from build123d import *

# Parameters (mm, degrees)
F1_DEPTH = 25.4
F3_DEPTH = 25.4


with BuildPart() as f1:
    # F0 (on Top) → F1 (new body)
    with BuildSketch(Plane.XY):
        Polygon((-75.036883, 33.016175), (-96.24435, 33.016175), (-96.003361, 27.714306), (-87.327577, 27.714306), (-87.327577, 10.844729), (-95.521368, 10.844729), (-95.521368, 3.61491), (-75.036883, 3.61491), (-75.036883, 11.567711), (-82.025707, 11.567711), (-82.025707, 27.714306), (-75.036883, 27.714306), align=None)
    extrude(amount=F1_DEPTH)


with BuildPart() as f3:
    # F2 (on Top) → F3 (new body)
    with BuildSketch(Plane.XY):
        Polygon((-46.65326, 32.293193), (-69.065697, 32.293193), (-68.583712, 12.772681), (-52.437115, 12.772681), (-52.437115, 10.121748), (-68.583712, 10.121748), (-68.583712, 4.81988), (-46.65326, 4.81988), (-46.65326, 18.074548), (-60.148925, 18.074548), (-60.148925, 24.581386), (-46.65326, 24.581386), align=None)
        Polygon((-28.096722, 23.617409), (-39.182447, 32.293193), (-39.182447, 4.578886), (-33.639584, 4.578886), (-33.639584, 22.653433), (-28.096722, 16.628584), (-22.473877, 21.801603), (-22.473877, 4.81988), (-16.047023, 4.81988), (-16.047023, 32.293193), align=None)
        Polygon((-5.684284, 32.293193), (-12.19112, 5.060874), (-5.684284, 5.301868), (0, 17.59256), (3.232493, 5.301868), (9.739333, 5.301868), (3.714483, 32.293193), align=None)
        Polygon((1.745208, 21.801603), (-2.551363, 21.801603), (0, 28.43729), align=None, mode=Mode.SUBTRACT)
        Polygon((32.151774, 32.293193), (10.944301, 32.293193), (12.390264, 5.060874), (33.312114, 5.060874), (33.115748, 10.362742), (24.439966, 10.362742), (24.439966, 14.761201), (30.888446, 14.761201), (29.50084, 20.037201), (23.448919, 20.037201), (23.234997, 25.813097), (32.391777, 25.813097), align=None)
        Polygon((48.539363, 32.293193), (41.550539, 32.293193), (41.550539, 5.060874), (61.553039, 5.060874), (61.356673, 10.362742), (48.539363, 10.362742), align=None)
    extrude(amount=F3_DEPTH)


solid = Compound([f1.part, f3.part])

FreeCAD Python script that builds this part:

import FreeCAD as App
import Part
import Sketcher

V = App.Vector
Q = App.Units.Quantity

doc = App.newDocument("Part")
body = doc.addObject("PartDesign::Body", "Body")

# Sketch on XY plane
sketch1 = body.newObject("Sketcher::SketchObject", "Sketch")
sketch1.AttachmentSupport = (doc.getObject("XY_Plane"), [""])
sketch1.MapMode = "FlatFace"
sketch1.addGeometry(Part.LineSegment(V(-75.036883, 33.016175, 0), V(-96.24435, 33.016175, 0)), False)
sketch1.addGeometry(Part.LineSegment(V(-96.24435, 33.016175, 0), V(-96.003361, 27.714306, 0)), False)
sketch1.addGeometry(Part.LineSegment(V(-96.003361, 27.714306, 0), V(-87.327577, 27.714306, 0)), False)
sketch1.addGeometry(Part.LineSegment(V(-87.327577, 27.714306, 0), V(-87.327577, 10.844729, 0)), False)
sketch1.addGeometry(Part.LineSegment(V(-87.327577, 10.844729, 0), V(-95.521368, 10.844729, 0)), False)
sketch1.addGeometry(Part.LineSegment(V(-95.521368, 10.844729, 0), V(-95.521368, 3.61491, 0)), False)
sketch1.addGeometry(Part.LineSegment(V(-95.521368, 3.61491, 0), V(-75.036883, 3.61491, 0)), False)
sketch1.addGeometry(Part.LineSegment(V(-75.036883, 3.61491, 0), V(-75.036883, 11.567711, 0)), False)
sketch1.addGeometry(Part.LineSegment(V(-75.036883, 11.567711, 0), V(-82.025707, 11.567711, 0)), False)
sketch1.addGeometry(Part.LineSegment(V(-82.025707, 11.567711, 0), V(-82.025707, 27.714306, 0)), False)
sketch1.addGeometry(Part.LineSegment(V(-82.025707, 27.714306, 0), V(-75.036883, 27.714306, 0)), False)
sketch1.addGeometry(Part.LineSegment(V(-75.036883, 27.714306, 0), V(-75.036883, 33.016175, 0)), False)
sketch1.addConstraint(Sketcher.Constraint("Coincident", 0, 2, 1, 1))
sketch1.addConstraint(Sketcher.Constraint("Coincident", 1, 2, 2, 1))
sketch1.addConstraint(Sketcher.Constraint("Coincident", 2, 2, 3, 1))
sketch1.addConstraint(Sketcher.Constraint("Coincident", 3, 2, 4, 1))
sketch1.addConstraint(Sketcher.Constraint("Coincident", 4, 2, 5, 1))
sketch1.addConstraint(Sketcher.Constraint("Coincident", 5, 2, 6, 1))
sketch1.addConstraint(Sketcher.Constraint("Coincident", 6, 2, 7, 1))
sketch1.addConstraint(Sketcher.Constraint("Coincident", 7, 2, 8, 1))
sketch1.addConstraint(Sketcher.Constraint("Coincident", 8, 2, 9, 1))
sketch1.addConstraint(Sketcher.Constraint("Coincident", 9, 2, 10, 1))
sketch1.addConstraint(Sketcher.Constraint("Coincident", 10, 2, 11, 1))
sketch1.addConstraint(Sketcher.Constraint("Coincident", 11, 2, 0, 1))
sketch1.addConstraint(Sketcher.Constraint("Horizontal", 0))
sketch1.addConstraint(Sketcher.Constraint("Horizontal", 2))
sketch1.addConstraint(Sketcher.Constraint("Vertical", 3))
sketch1.addConstraint(Sketcher.Constraint("Horizontal", 4))
sketch1.addConstraint(Sketcher.Constraint("Vertical", 5))
sketch1.addConstraint(Sketcher.Constraint("Horizontal", 6))
sketch1.addConstraint(Sketcher.Constraint("Vertical", 7))
sketch1.addConstraint(Sketcher.Constraint("Horizontal", 8))
sketch1.addConstraint(Sketcher.Constraint("Vertical", 9))
sketch1.addConstraint(Sketcher.Constraint("Horizontal", 10))
sketch1.addConstraint(Sketcher.Constraint("Vertical", 11))
sketch1.addConstraint(Sketcher.Constraint("Horizontal", 2, 2, 9, 2))
sketch1.addConstraint(Sketcher.Constraint("Vertical", 7, 2, 10, 2))
sketch1.addConstraint(Sketcher.Constraint("DistanceY", 7, 1, 7, 2, 7.952801))
sketch1.addConstraint(Sketcher.Constraint("DistanceX", 4, 2, 4, 1, 8.193791))
sketch1.addConstraint(Sketcher.Constraint("DistanceY", 5, 2, 5, 1, 7.229819))
sketch1.addConstraint(Sketcher.Constraint("DistanceY", 11, 1, 11, 2, 5.301869))
sketch1.addConstraint(Sketcher.Constraint("DistanceX", 0, 2, 0, 1, 21.207467))
sketch1.addConstraint(Sketcher.Constraint("DistanceX", 2, 1, 2, 2, 8.675784))
sketch1.addConstraint(Sketcher.Constraint("DistanceX", 6, 1, 6, 2, 20.484485))
sketch1.addConstraint(Sketcher.Constraint("DistanceX", 8, 2, 8, 1, 6.988824))
sketch1.addConstraint(Sketcher.Constraint("DistanceY", 3, 2, 3, 1, 16.869577))
sketch1.addConstraint(Sketcher.Constraint("DistanceX", 0, 2, -1, 1, 96.24435))
sketch1.addConstraint(Sketcher.Constraint("DistanceY", -1, 1, 3, 2, 10.844729))
pad1 = body.newObject("PartDesign::Pad", "Pad")
pad1.Profile = sketch1
pad1.Length = Q("1 in")
body2 = doc.addObject("PartDesign::Body", "Body001")
body2.AllowCompound = True

# Sketch on XY plane
sketch2 = body2.newObject("Sketcher::SketchObject", "Sketch001")
sketch2.AttachmentSupport = (doc.getObject("XY_Plane001"), [""])
sketch2.MapMode = "FlatFace"
sketch2.addGeometry(Part.LineSegment(V(-46.65326, 32.293193, 0), V(-69.065697, 32.293193, 0)), False)
sketch2.addGeometry(Part.LineSegment(V(-69.065697, 32.293193, 0), V(-68.583712, 12.772681, 0)), False)
sketch2.addGeometry(Part.LineSegment(V(-68.583712, 12.772681, 0), V(-52.437115, 12.772681, 0)), False)
sketch2.addGeometry(Part.LineSegment(V(-52.437115, 12.772681, 0), V(-52.437115, 10.121748, 0)), False)
sketch2.addGeometry(Part.LineSegment(V(-52.437115, 10.121748, 0), V(-68.583712, 10.121748, 0)), False)
sketch2.addGeometry(Part.LineSegment(V(-68.583712, 10.121748, 0), V(-68.583712, 4.81988, 0)), False)
sketch2.addGeometry(Part.LineSegment(V(-68.583712, 4.81988, 0), V(-46.65326, 4.81988, 0)), False)
sketch2.addGeometry(Part.LineSegment(V(-46.65326, 4.81988, 0), V(-46.65326, 18.074548, 0)), False)
sketch2.addGeometry(Part.LineSegment(V(-46.65326, 18.074548, 0), V(-60.148925, 18.074548, 0)), False)
sketch2.addGeometry(Part.LineSegment(V(-60.148925, 18.074548, 0), V(-60.148925, 24.581386, 0)), False)
sketch2.addGeometry(Part.LineSegment(V(-60.148925, 24.581386, 0), V(-46.65326, 24.581386, 0)), False)
sketch2.addGeometry(Part.LineSegment(V(-46.65326, 24.581386, 0), V(-46.65326, 32.293193, 0)), False)
sketch2.addGeometry(Part.LineSegment(V(-28.096722, 23.617409, 0), V(-39.182447, 32.293193, 0)), False)
sketch2.addGeometry(Part.LineSegment(V(-39.182447, 32.293193, 0), V(-39.182447, 4.578886, 0)), False)
sketch2.addGeometry(Part.LineSegment(V(-39.182447, 4.578886, 0), V(-33.639584, 4.578886, 0)), False)
sketch2.addGeometry(Part.LineSegment(V(-33.639584, 4.578886, 0), V(-33.639584, 22.653433, 0)), False)
sketch2.addGeometry(Part.LineSegment(V(-33.639584, 22.653433, 0), V(-28.096722, 16.628584, 0)), False)
sketch2.addGeometry(Part.LineSegment(V(-28.096722, 16.628584, 0), V(-22.473877, 21.801603, 0)), False)
sketch2.addGeometry(Part.LineSegment(V(-22.473877, 21.801603, 0), V(-22.473877, 4.81988, 0)), False)
sketch2.addGeometry(Part.LineSegment(V(-22.473877, 4.81988, 0), V(-16.047023, 4.81988, 0)), False)
sketch2.addGeometry(Part.LineSegment(V(-16.047023, 4.81988, 0), V(-16.047023, 32.293193, 0)), False)
sketch2.addGeometry(Part.LineSegment(V(-16.047023, 32.293193, 0), V(-28.096722, 23.617409, 0)), False)
sketch2.addGeometry(Part.LineSegment(V(-5.684284, 32.293193, 0), V(-12.19112, 5.060874, 0)), False)
sketch2.addGeometry(Part.LineSegment(V(-12.19112, 5.060874, 0), V(-5.684284, 5.301868, 0)), False)
sketch2.addGeometry(Part.LineSegment(V(-5.684284, 5.301868, 0), V(0, 17.59256, 0)), False)
sketch2.addGeometry(Part.LineSegment(V(0, 17.59256, 0), V(3.232493, 5.301868, 0)), False)
sketch2.addGeometry(Part.LineSegment(V(3.232493, 5.301868, 0), V(9.739333, 5.301868, 0)), False)
sketch2.addGeometry(Part.LineSegment(V(9.739333, 5.301868, 0), V(3.714483, 32.293193, 0)), False)
sketch2.addGeometry(Part.LineSegment(V(3.714483, 32.293193, 0), V(-5.684284, 32.293193, 0)), False)
sketch2.addGeometry(Part.LineSegment(V(0, 28.43729, 0), V(1.745208, 21.801603, 0)), False)
sketch2.addGeometry(Part.LineSegment(V(1.745208, 21.801603, 0), V(-2.551363, 21.801603, 0)), False)
sketch2.addGeometry(Part.LineSegment(V(-2.551363, 21.801603, 0), V(0, 28.43729, 0)), False)
sketch2.addGeometry(Part.LineSegment(V(32.151774, 32.293193, 0), V(10.944301, 32.293193, 0)), False)
sketch2.addGeometry(Part.LineSegment(V(10.944301, 32.293193, 0), V(12.390264, 5.060874, 0)), False)
sketch2.addGeometry(Part.LineSegment(V(12.390264, 5.060874, 0), V(33.312114, 5.060874, 0)), False)
sketch2.addGeometry(Part.LineSegment(V(33.312114, 5.060874, 0), V(33.115748, 10.362742, 0)), False)
sketch2.addGeometry(Part.LineSegment(V(33.115748, 10.362742, 0), V(24.439966, 10.362742, 0)), False)
sketch2.addGeometry(Part.LineSegment(V(24.439966, 10.362742, 0), V(24.439966, 14.761201, 0)), False)
sketch2.addGeometry(Part.LineSegment(V(24.439966, 14.761201, 0), V(30.888446, 14.761201, 0)), False)
sketch2.addGeometry(Part.LineSegment(V(30.888446, 14.761201, 0), V(29.50084, 20.037201, 0)), False)
sketch2.addGeometry(Part.LineSegment(V(29.50084, 20.037201, 0), V(23.448919, 20.037201, 0)), False)
sketch2.addGeometry(Part.LineSegment(V(23.448919, 20.037201, 0), V(23.234997, 25.813097, 0)), False)
sketch2.addGeometry(Part.LineSegment(V(23.234997, 25.813097, 0), V(32.391777, 25.813097, 0)), False)
sketch2.addGeometry(Part.LineSegment(V(32.391777, 25.813097, 0), V(32.151774, 32.293193, 0)), False)
sketch2.addGeometry(Part.LineSegment(V(48.539363, 32.293193, 0), V(41.550539, 32.293193, 0)), False)
sketch2.addGeometry(Part.LineSegment(V(41.550539, 32.293193, 0), V(41.550539, 5.060874, 0)), False)
sketch2.addGeometry(Part.LineSegment(V(41.550539, 5.060874, 0), V(61.553039, 5.060874, 0)), False)
sketch2.addGeometry(Part.LineSegment(V(61.553039, 5.060874, 0), V(61.356673, 10.362742, 0)), False)
sketch2.addGeometry(Part.LineSegment(V(61.356673, 10.362742, 0), V(48.539363, 10.362742, 0)), False)
sketch2.addGeometry(Part.LineSegment(V(48.539363, 10.362742, 0), V(48.539363, 32.293193, 0)), False)
sketch2.addConstraint(Sketcher.Constraint("Coincident", 0, 2, 1, 1))
sketch2.addConstraint(Sketcher.Constraint("Coincident", 1, 2, 2, 1))
sketch2.addConstraint(Sketcher.Constraint("Coincident", 2, 2, 3, 1))
sketch2.addConstraint(Sketcher.Constraint("Coincident", 3, 2, 4, 1))
sketch2.addConstraint(Sketcher.Constraint("Coincident", 4, 2, 5, 1))
sketch2.addConstraint(Sketcher.Constraint("Coincident", 5, 2, 6, 1))
sketch2.addConstraint(Sketcher.Constraint("Coincident", 6, 2, 7, 1))
sketch2.addConstraint(Sketcher.Constraint("Coincident", 7, 2, 8, 1))
sketch2.addConstraint(Sketcher.Constraint("Coincident", 8, 2, 9, 1))
sketch2.addConstraint(Sketcher.Constraint("Coincident", 9, 2, 10, 1))
sketch2.addConstraint(Sketcher.Constraint("Coincident", 10, 2, 11, 1))
sketch2.addConstraint(Sketcher.Constraint("Coincident", 11, 2, 0, 1))
sketch2.addConstraint(Sketcher.Constraint("Coincident", 12, 2, 13, 1))
sketch2.addConstraint(Sketcher.Constraint("Coincident", 13, 2, 14, 1))
sketch2.addConstraint(Sketcher.Constraint("Coincident", 14, 2, 15, 1))
sketch2.addConstraint(Sketcher.Constraint("Coincident", 15, 2, 16, 1))
sketch2.addConstraint(Sketcher.Constraint("Coincident", 16, 2, 17, 1))
sketch2.addConstraint(Sketcher.Constraint("Coincident", 17, 2, 18, 1))
sketch2.addConstraint(Sketcher.Constraint("Coincident", 18, 2, 19, 1))
sketch2.addConstraint(Sketcher.Constraint("Coincident", 19, 2, 20, 1))
sketch2.addConstraint(Sketcher.Constraint("Coincident", 20, 2, 21, 1))
sketch2.addConstraint(Sketcher.Constraint("Coincident", 21, 2, 12, 1))
sketch2.addConstraint(Sketcher.Constraint("Coincident", 22, 2, 23, 1))
sketch2.addConstraint(Sketcher.Constraint("Coincident", 23, 2, 24, 1))
sketch2.addConstraint(Sketcher.Constraint("Coincident", 24, 2, 25, 1))
sketch2.addConstraint(Sketcher.Constraint("Coincident", 25, 2, 26, 1))
sketch2.addConstraint(Sketcher.Constraint("Coincident", 26, 2, 27, 1))
sketch2.addConstraint(Sketcher.Constraint("Coincident", 27, 2, 28, 1))
sketch2.addConstraint(Sketcher.Constraint("Coincident", 28, 2, 22, 1))
sketch2.addConstraint(Sketcher.Constraint("Coincident", 29, 2, 30, 1))
sketch2.addConstraint(Sketcher.Constraint("Coincident", 30, 2, 31, 1))
sketch2.addConstraint(Sketcher.Constraint("Coincident", 31, 2, 29, 1))
sketch2.addConstraint(Sketcher.Constraint("Coincident", 32, 2, 33, 1))
sketch2.addConstraint(Sketcher.Constraint("Coincident", 33, 2, 34, 1))
sketch2.addConstraint(Sketcher.Constraint("Coincident", 34, 2, 35, 1))
sketch2.addConstraint(Sketcher.Constraint("Coincident", 35, 2, 36, 1))
sketch2.addConstraint(Sketcher.Constraint("Coincident", 36, 2, 37, 1))
sketch2.addConstraint(Sketcher.Constraint("Coincident", 37, 2, 38, 1))
sketch2.addConstraint(Sketcher.Constraint("Coincident", 38, 2, 39, 1))
sketch2.addConstraint(Sketcher.Constraint("Coincident", 39, 2, 40, 1))
sketch2.addConstraint(Sketcher.Constraint("Coincident", 40, 2, 41, 1))
sketch2.addConstraint(Sketcher.Constraint("Coincident", 41, 2, 42, 1))
sketch2.addConstraint(Sketcher.Constraint("Coincident", 42, 2, 43, 1))
sketch2.addConstraint(Sketcher.Constraint("Coincident", 43, 2, 32, 1))
sketch2.addConstraint(Sketcher.Constraint("Coincident", 44, 2, 45, 1))
sketch2.addConstraint(Sketcher.Constraint("Coincident", 45, 2, 46, 1))
sketch2.addConstraint(Sketcher.Constraint("Coincident", 46, 2, 47, 1))
sketch2.addConstraint(Sketcher.Constraint("Coincident", 47, 2, 48, 1))
sketch2.addConstraint(Sketcher.Constraint("Coincident", 48, 2, 49, 1))
sketch2.addConstraint(Sketcher.Constraint("Coincident", 49, 2, 44, 1))
sketch2.addConstraint(Sketcher.Constraint("Horizontal", 0))
sketch2.addConstraint(Sketcher.Constraint("Horizontal", 2))
sketch2.addConstraint(Sketcher.Constraint("Vertical", 3))
sketch2.addConstraint(Sketcher.Constraint("Horizontal", 4))
sketch2.addConstraint(Sketcher.Constraint("Vertical", 5))
sketch2.addConstraint(Sketcher.Constraint("Horizontal", 6))
sketch2.addConstraint(Sketcher.Constraint("Vertical", 7))
sketch2.addConstraint(Sketcher.Constraint("Horizontal", 8))
sketch2.addConstraint(Sketcher.Constraint("Vertical", 9))
sketch2.addConstraint(Sketcher.Constraint("Horizontal", 10))
sketch2.addConstraint(Sketcher.Constraint("Vertical", 11))
sketch2.addConstraint(Sketcher.Constraint("Vertical", 13))
sketch2.addConstraint(Sketcher.Constraint("Horizontal", 14))
sketch2.addConstraint(Sketcher.Constraint("Vertical", 15))
sketch2.addConstraint(Sketcher.Constraint("Vertical", 18))
sketch2.addConstraint(Sketcher.Constraint("Horizontal", 19))
sketch2.addConstraint(Sketcher.Constraint("Vertical", 20))
sketch2.addConstraint(Sketcher.Constraint("Horizontal", 26))
sketch2.addConstraint(Sketcher.Constraint("Horizontal", 28))
sketch2.addConstraint(Sketcher.Constraint("Horizontal", 30))
sketch2.addConstraint(Sketcher.Constraint("Horizontal", 32))
sketch2.addConstraint(Sketcher.Constraint("Horizontal", 34))
sketch2.addConstraint(Sketcher.Constraint("Horizontal", 36))
sketch2.addConstraint(Sketcher.Constraint("Vertical", 37))
sketch2.addConstraint(Sketcher.Constraint("Horizontal", 38))
sketch2.addConstraint(Sketcher.Constraint("Horizontal", 40))
sketch2.addConstraint(Sketcher.Constraint("Horizontal", 42))
sketch2.addConstraint(Sketcher.Constraint("Horizontal", 44))
sketch2.addConstraint(Sketcher.Constraint("Vertical", 45))
sketch2.addConstraint(Sketcher.Constraint("Horizontal", 46))
sketch2.addConstraint(Sketcher.Constraint("Horizontal", 48))
sketch2.addConstraint(Sketcher.Constraint("Vertical", 49))
sketch2.addConstraint(Sketcher.Constraint("PointOnObject", 24, 2, -2))
sketch2.addConstraint(Sketcher.Constraint("PointOnObject", 31, 2, -2))
sketch2.addConstraint(Sketcher.Constraint("DistanceX", 46, 1, 46, 2, Q("0.7875 in")))
sketch2.addConstraint(Sketcher.Constraint("DistanceY", 13, 2, 10, 2, Q("0.7875 in")))
sketch2.addConstraint(Sketcher.Constraint("Distance", 24, 13.541499))
sketch2.addConstraint(Sketcher.Constraint("DistanceX", 26, 1, 26, 2, 6.50684))
sketch2.addConstraint(Sketcher.Constraint("DistanceX", 30, 2, 30, 1, 4.296571))
sketch2.addConstraint(Sketcher.Constraint("DistanceX", 34, 1, 34, 2, 20.92185))
sketch2.addConstraint(Sketcher.Constraint("DistanceX", 38, 1, 38, 2, 6.44848))
sketch2.addConstraint(Sketcher.Constraint("DistanceX", 40, 2, 40, 1, 6.051921))
sketch2.addConstraint(Sketcher.Constraint("DistanceX", 42, 1, 42, 2, 9.15678))
sketch2.addConstraint(Sketcher.Constraint("DistanceX", 48, 2, 48, 1, 12.81731))
sketch2.addConstraint(Sketcher.Constraint("DistanceY", 37, 1, 37, 2, 4.398459))
sketch2.addConstraint(Sketcher.Constraint("DistanceY", 45, 2, 45, 1, 27.232319))
sketch2.addConstraint(Sketcher.Constraint("DistanceY", 49, 1, 49, 2, 21.930451))
sketch2.addConstraint(Sketcher.Constraint("DistanceX", -1, 1, 32, 2, 10.944301))
sketch2.addConstraint(Sketcher.Constraint("DistanceY", -1, 1, 37, 2, 14.761201))
sketch2.addConstraint(Sketcher.Constraint("DistanceY", -1, 1, 39, 2, 20.037201))
sketch2.addConstraint(Sketcher.Constraint("DistanceY", 5, 2, 1, 2, 7.952801))
sketch2.addConstraint(Sketcher.Constraint("DistanceY", 3, 2, 7, 2, 7.9528))
sketch2.addConstraint(Sketcher.Constraint("DistanceX", 16, 2, 19, 2, 12.049699))
sketch2.addConstraint(Sketcher.Constraint("DistanceX", 21, 2, 20, 2, 12.049699))
sketch2.addConstraint(Sketcher.Constraint("DistanceX", 33, 2, 36, 2, 12.049702))
sketch2.addConstraint(Sketcher.Constraint("DistanceX", 39, 2, 44, 2, 12.049699))
sketch2.addConstraint(Sketcher.Constraint("Distance", 1, 19.526461))
sketch2.addConstraint(Sketcher.Constraint("Distance", 12, 14.077021))
sketch2.addConstraint(Sketcher.Constraint("Distance", 27, 27.655568))
sketch2.addConstraint(Sketcher.Constraint("Distance", 33, 27.27068))
sketch2.addConstraint(Sketcher.Constraint("Distance", 39, 5.455422))
sketch2.addConstraint(Sketcher.Constraint("Distance", 43, 6.484539))
sketch2.addConstraint(Sketcher.Constraint("DistanceX", 0, 2, 0, 1, 22.412437))
sketch2.addConstraint(Sketcher.Constraint("DistanceX", 2, 1, 2, 2, 16.146597))
sketch2.addConstraint(Sketcher.Constraint("DistanceX", 4, 2, 4, 1, 16.146597))
sketch2.addConstraint(Sketcher.Constraint("DistanceX", 6, 1, 6, 2, 21.930452))
sketch2.addConstraint(Sketcher.Constraint("DistanceX", 8, 2, 8, 1, 13.495665))
sketch2.addConstraint(Sketcher.Constraint("DistanceX", 10, 1, 10, 2, 13.495665))
sketch2.addConstraint(Sketcher.Constraint("DistanceX", 14, 1, 14, 2, 5.542863))
sketch2.addConstraint(Sketcher.Constraint("DistanceX", 19, 1, 19, 2, 6.426854))
sketch2.addConstraint(Sketcher.Constraint("DistanceX", 28, 2, 28, 1, 9.398767))
sketch2.addConstraint(Sketcher.Constraint("DistanceX", 32, 2, 32, 1, 21.207473))
sketch2.addConstraint(Sketcher.Constraint("DistanceX", 36, 2, 36, 1, 8.675782))
sketch2.addConstraint(Sketcher.Constraint("DistanceX", 44, 2, 44, 1, 6.988824))
sketch2.addConstraint(Sketcher.Constraint("DistanceY", 3, 2, 3, 1, 2.650933))
sketch2.addConstraint(Sketcher.Constraint("DistanceY", 9, 1, 9, 2, 6.506838))
sketch2.addConstraint(Sketcher.Constraint("DistanceY", 13, 2, 13, 1, 27.714307))
sketch2.addConstraint(Sketcher.Constraint("DistanceY", 15, 1, 15, 2, 18.074547))
sketch2.addConstraint(Sketcher.Constraint("DistanceY", 18, 2, 18, 1, 16.981723))
sketch2.addConstraint(Sketcher.Constraint("DistanceY", 20, 1, 20, 2, 27.473313))
sketch2.addConstraint(Sketcher.Constraint("DistanceY", -1, 1, 1, 2, 12.772681))
sketch2.addConstraint(Sketcher.Constraint("DistanceX", 6, 2, -1, 1, 46.65326))
sketch2.addConstraint(Sketcher.Constraint("DistanceX", 16, 2, -1, 1, 28.096722))
sketch2.addConstraint(Sketcher.Constraint("DistanceY", -1, 1, 18, 2, 4.81988))
sketch2.addConstraint(Sketcher.Constraint("DistanceY", -1, 1, 21, 2, 23.617409))
sketch2.addConstraint(Sketcher.Constraint("DistanceX", 22, 2, -1, 1, 12.19112))
sketch2.addConstraint(Sketcher.Constraint("DistanceY", -1, 1, 24, 2, 17.59256))
sketch2.addConstraint(Sketcher.Constraint("DistanceX", -1, 1, 29, 2, 1.745208))
sketch2.addConstraint(Sketcher.Constraint("DistanceY", -1, 1, 31, 2, 28.43729))
sketch2.addConstraint(Sketcher.Constraint("DistanceX", -1, 1, 35, 2, 33.115748))
sketch2.addConstraint(Sketcher.Constraint("DistanceY", 16, 2, 15, 2, 6.024849))
sketch2.addConstraint(Sketcher.Constraint("DistanceY", 22, 2, 17, 2, 16.740729))
sketch2.addConstraint(Sketcher.Constraint("DistanceX", 19, 2, 23, 2, 10.362739))
sketch2.addConstraint(Sketcher.Constraint("DistanceX", 18, 2, 25, 2, 25.70637))
sketch2.addConstraint(Sketcher.Constraint("DistanceX", 25, 2, 27, 2, 0.48199))
sketch2.addConstraint(Sketcher.Constraint("DistanceY", 17, 2, 27, 2, 10.49159))
sketch2.addConstraint(Sketcher.Constraint("DistanceY", 29, 2, 27, 2, 10.49159))
sketch2.addConstraint(Sketcher.Constraint("DistanceY", 29, 2, 32, 2, 10.49159))
sketch2.addConstraint(Sketcher.Constraint("DistanceX", 41, 2, 37, 2, 1.204969))
sketch2.addConstraint(Sketcher.Constraint("DistanceY", 45, 2, 35, 2, 5.301868))
pad2 = body2.newObject("PartDesign::Pad", "Pad001")
pad2.Profile = sketch2
pad2.Length = Q("1 in")

doc.recompute()
